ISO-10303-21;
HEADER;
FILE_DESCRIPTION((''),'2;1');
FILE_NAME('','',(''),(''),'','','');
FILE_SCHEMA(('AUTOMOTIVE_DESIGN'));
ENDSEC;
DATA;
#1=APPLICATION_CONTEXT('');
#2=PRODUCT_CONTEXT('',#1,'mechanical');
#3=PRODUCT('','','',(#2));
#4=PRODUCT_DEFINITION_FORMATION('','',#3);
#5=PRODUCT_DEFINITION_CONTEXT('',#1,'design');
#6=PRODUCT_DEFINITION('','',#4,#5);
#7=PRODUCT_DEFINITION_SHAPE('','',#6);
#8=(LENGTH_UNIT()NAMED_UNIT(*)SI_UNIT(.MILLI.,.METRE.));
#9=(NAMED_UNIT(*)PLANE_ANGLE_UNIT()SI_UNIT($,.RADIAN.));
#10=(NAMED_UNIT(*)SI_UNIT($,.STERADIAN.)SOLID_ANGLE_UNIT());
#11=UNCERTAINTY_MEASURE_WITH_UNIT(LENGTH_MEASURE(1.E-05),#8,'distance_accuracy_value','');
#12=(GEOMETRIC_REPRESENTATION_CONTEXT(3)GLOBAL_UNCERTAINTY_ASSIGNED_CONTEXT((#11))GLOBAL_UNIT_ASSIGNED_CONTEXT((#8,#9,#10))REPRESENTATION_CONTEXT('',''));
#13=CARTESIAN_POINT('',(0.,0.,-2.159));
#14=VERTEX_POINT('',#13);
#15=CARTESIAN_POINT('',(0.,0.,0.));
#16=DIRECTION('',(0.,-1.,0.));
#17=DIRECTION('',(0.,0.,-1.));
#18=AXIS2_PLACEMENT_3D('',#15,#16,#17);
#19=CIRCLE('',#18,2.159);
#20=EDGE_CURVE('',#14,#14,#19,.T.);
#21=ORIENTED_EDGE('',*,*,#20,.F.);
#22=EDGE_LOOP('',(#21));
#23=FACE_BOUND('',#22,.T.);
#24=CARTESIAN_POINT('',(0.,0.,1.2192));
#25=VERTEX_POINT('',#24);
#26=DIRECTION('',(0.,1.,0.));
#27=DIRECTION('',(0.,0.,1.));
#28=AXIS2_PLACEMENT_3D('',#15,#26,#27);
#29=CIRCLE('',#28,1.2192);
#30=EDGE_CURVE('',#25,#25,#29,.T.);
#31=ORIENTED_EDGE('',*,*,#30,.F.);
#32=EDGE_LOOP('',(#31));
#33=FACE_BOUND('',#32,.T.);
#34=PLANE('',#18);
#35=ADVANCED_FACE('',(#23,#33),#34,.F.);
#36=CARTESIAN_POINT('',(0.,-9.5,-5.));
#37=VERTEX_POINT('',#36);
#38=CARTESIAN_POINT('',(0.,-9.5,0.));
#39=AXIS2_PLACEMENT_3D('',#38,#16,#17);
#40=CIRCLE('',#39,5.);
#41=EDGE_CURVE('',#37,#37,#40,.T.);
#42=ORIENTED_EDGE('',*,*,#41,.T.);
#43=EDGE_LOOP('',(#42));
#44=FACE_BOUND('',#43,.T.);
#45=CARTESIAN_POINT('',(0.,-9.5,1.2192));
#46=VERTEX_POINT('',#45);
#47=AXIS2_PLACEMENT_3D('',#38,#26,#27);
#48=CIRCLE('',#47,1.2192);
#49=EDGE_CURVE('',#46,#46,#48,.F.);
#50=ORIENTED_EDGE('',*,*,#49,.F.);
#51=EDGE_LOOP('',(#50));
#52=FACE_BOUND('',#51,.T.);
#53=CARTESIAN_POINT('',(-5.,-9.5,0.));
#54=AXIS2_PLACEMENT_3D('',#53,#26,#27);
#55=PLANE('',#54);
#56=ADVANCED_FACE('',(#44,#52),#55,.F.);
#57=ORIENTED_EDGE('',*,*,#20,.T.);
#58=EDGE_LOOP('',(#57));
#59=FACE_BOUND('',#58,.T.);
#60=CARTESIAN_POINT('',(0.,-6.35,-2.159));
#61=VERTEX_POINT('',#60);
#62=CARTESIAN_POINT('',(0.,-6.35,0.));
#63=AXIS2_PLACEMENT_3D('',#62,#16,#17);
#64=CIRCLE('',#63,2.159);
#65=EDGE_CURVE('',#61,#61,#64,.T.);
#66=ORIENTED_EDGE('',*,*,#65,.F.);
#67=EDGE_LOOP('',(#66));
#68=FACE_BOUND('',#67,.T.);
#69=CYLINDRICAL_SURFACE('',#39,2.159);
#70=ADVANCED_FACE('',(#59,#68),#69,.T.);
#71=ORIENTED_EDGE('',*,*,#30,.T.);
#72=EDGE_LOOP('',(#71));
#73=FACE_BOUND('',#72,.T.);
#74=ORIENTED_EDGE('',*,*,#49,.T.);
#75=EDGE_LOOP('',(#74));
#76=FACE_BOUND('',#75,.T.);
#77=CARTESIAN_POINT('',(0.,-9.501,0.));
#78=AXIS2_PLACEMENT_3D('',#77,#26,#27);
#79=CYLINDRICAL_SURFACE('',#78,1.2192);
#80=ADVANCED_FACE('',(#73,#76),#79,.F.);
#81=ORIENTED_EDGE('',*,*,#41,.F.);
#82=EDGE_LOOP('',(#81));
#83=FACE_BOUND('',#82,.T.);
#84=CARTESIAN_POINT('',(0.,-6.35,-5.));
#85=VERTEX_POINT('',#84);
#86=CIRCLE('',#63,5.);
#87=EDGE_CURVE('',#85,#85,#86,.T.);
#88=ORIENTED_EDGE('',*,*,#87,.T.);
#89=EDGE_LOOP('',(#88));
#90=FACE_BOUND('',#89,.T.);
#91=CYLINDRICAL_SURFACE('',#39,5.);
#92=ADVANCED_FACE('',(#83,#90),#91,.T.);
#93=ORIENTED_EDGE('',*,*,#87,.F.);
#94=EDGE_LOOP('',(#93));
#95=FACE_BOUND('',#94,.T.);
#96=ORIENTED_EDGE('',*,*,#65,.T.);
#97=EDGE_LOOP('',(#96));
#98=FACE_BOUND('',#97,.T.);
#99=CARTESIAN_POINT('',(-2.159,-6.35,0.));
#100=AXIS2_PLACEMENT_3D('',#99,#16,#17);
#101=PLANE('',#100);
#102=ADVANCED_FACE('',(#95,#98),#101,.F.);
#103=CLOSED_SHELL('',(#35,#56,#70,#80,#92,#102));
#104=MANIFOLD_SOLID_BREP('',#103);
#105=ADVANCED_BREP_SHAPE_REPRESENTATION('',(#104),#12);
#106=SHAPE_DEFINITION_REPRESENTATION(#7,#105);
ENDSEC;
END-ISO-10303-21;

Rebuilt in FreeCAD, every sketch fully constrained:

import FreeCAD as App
import Part
import Sketcher
from FreeCAD import Vector
Q = App.Units.Quantity

doc = App.newDocument("Part")
body = doc.addObject("PartDesign::Body", "Body")

# Sketch on XY plane
sketch1 = body.newObject("Sketcher::SketchObject", "Sketch")
sketch1.AttachmentSupport = (doc.getObject("XY_Plane"), [""])
sketch1.MapMode = "FlatFace"
sketch1.addGeometry([
    Part.LineSegment(Vector(0, 0, 0), Vector(-2.2, 0, 0)),  # 0
    Part.LineSegment(Vector(-2.2, 0, 0), Vector(-2.2, -6.3, 0)),  # 1
    Part.LineSegment(Vector(-2.2, -6.3, 0), Vector(-5, -6.3, 0)),  # 2
    Part.LineSegment(Vector(-5, -6.3, 0), Vector(-5, -9.5, 0)),  # 3
    Part.LineSegment(Vector(-5, -9.5, 0), Vector(0, -9.5, 0)),  # 4
    Part.LineSegment(Vector(0, -9.5, 0), Vector(0, 0, 0)),  # 5
], False)
sketch1.addConstraint([
    Sketcher.Constraint("Coincident", 0, 2, 1, 1),
    Sketcher.Constraint("Coincident", 1, 2, 2, 1),
    Sketcher.Constraint("Coincident", 2, 2, 3, 1),
    Sketcher.Constraint("Coincident", 3, 2, 4, 1),
    Sketcher.Constraint("Coincident", 4, 2, 5, 1),
    Sketcher.Constraint("Coincident", 5, 2, 0, 1),
    Sketcher.Constraint("Horizontal", 0),
    Sketcher.Constraint("Vertical", 1),
    Sketcher.Constraint("Horizontal", 2),
    Sketcher.Constraint("Vertical", 3),
    Sketcher.Constraint("Horizontal", 4),
    Sketcher.Constraint("Vertical", 5),
    Sketcher.Constraint("Coincident", 5, 2, -1, 1),
    Sketcher.Constraint("DistanceY", 1, 2, 1, 1, Q("0.25 in")),
    Sketcher.Constraint("DistanceX", 0, 2, 0, 1, Q("0.085 in")),
    Sketcher.Constraint("DistanceX", 2, 2, 2, 1, 2.841),
    Sketcher.Constraint("DistanceY", 3, 2, 3, 1, 3.15),
])
revolution = body.newObject("PartDesign::Revolution", "Revolution")
revolution.Profile = sketch1
revolution.ReferenceAxis = (sketch1, ["V_Axis"])
revolution.Angle = 360

# Sketch on XZ plane
sketch2 = body.newObject("Sketcher::SketchObject", "Sketch001")
sketch2.AttachmentSupport = (doc.getObject("XZ_Plane"), [""])
sketch2.MapMode = "FlatFace"
sketch2.addGeometry(Part.Circle(Vector(0, 0, 0), Vector(0, 0, 1), 1.2), False)
sketch2.addConstraint([
    Sketcher.Constraint("Coincident", 0, 3, -1, 1),
    Sketcher.Constraint("Diameter", 0, Q("0.096 in")),
])
pocket1 = body.newObject("PartDesign::Pocket", "Pocket")
pocket1.Profile = sketch2
pocket1.Type = "UpToFirst"
pocket1.Reversed = True

doc.recompute()
